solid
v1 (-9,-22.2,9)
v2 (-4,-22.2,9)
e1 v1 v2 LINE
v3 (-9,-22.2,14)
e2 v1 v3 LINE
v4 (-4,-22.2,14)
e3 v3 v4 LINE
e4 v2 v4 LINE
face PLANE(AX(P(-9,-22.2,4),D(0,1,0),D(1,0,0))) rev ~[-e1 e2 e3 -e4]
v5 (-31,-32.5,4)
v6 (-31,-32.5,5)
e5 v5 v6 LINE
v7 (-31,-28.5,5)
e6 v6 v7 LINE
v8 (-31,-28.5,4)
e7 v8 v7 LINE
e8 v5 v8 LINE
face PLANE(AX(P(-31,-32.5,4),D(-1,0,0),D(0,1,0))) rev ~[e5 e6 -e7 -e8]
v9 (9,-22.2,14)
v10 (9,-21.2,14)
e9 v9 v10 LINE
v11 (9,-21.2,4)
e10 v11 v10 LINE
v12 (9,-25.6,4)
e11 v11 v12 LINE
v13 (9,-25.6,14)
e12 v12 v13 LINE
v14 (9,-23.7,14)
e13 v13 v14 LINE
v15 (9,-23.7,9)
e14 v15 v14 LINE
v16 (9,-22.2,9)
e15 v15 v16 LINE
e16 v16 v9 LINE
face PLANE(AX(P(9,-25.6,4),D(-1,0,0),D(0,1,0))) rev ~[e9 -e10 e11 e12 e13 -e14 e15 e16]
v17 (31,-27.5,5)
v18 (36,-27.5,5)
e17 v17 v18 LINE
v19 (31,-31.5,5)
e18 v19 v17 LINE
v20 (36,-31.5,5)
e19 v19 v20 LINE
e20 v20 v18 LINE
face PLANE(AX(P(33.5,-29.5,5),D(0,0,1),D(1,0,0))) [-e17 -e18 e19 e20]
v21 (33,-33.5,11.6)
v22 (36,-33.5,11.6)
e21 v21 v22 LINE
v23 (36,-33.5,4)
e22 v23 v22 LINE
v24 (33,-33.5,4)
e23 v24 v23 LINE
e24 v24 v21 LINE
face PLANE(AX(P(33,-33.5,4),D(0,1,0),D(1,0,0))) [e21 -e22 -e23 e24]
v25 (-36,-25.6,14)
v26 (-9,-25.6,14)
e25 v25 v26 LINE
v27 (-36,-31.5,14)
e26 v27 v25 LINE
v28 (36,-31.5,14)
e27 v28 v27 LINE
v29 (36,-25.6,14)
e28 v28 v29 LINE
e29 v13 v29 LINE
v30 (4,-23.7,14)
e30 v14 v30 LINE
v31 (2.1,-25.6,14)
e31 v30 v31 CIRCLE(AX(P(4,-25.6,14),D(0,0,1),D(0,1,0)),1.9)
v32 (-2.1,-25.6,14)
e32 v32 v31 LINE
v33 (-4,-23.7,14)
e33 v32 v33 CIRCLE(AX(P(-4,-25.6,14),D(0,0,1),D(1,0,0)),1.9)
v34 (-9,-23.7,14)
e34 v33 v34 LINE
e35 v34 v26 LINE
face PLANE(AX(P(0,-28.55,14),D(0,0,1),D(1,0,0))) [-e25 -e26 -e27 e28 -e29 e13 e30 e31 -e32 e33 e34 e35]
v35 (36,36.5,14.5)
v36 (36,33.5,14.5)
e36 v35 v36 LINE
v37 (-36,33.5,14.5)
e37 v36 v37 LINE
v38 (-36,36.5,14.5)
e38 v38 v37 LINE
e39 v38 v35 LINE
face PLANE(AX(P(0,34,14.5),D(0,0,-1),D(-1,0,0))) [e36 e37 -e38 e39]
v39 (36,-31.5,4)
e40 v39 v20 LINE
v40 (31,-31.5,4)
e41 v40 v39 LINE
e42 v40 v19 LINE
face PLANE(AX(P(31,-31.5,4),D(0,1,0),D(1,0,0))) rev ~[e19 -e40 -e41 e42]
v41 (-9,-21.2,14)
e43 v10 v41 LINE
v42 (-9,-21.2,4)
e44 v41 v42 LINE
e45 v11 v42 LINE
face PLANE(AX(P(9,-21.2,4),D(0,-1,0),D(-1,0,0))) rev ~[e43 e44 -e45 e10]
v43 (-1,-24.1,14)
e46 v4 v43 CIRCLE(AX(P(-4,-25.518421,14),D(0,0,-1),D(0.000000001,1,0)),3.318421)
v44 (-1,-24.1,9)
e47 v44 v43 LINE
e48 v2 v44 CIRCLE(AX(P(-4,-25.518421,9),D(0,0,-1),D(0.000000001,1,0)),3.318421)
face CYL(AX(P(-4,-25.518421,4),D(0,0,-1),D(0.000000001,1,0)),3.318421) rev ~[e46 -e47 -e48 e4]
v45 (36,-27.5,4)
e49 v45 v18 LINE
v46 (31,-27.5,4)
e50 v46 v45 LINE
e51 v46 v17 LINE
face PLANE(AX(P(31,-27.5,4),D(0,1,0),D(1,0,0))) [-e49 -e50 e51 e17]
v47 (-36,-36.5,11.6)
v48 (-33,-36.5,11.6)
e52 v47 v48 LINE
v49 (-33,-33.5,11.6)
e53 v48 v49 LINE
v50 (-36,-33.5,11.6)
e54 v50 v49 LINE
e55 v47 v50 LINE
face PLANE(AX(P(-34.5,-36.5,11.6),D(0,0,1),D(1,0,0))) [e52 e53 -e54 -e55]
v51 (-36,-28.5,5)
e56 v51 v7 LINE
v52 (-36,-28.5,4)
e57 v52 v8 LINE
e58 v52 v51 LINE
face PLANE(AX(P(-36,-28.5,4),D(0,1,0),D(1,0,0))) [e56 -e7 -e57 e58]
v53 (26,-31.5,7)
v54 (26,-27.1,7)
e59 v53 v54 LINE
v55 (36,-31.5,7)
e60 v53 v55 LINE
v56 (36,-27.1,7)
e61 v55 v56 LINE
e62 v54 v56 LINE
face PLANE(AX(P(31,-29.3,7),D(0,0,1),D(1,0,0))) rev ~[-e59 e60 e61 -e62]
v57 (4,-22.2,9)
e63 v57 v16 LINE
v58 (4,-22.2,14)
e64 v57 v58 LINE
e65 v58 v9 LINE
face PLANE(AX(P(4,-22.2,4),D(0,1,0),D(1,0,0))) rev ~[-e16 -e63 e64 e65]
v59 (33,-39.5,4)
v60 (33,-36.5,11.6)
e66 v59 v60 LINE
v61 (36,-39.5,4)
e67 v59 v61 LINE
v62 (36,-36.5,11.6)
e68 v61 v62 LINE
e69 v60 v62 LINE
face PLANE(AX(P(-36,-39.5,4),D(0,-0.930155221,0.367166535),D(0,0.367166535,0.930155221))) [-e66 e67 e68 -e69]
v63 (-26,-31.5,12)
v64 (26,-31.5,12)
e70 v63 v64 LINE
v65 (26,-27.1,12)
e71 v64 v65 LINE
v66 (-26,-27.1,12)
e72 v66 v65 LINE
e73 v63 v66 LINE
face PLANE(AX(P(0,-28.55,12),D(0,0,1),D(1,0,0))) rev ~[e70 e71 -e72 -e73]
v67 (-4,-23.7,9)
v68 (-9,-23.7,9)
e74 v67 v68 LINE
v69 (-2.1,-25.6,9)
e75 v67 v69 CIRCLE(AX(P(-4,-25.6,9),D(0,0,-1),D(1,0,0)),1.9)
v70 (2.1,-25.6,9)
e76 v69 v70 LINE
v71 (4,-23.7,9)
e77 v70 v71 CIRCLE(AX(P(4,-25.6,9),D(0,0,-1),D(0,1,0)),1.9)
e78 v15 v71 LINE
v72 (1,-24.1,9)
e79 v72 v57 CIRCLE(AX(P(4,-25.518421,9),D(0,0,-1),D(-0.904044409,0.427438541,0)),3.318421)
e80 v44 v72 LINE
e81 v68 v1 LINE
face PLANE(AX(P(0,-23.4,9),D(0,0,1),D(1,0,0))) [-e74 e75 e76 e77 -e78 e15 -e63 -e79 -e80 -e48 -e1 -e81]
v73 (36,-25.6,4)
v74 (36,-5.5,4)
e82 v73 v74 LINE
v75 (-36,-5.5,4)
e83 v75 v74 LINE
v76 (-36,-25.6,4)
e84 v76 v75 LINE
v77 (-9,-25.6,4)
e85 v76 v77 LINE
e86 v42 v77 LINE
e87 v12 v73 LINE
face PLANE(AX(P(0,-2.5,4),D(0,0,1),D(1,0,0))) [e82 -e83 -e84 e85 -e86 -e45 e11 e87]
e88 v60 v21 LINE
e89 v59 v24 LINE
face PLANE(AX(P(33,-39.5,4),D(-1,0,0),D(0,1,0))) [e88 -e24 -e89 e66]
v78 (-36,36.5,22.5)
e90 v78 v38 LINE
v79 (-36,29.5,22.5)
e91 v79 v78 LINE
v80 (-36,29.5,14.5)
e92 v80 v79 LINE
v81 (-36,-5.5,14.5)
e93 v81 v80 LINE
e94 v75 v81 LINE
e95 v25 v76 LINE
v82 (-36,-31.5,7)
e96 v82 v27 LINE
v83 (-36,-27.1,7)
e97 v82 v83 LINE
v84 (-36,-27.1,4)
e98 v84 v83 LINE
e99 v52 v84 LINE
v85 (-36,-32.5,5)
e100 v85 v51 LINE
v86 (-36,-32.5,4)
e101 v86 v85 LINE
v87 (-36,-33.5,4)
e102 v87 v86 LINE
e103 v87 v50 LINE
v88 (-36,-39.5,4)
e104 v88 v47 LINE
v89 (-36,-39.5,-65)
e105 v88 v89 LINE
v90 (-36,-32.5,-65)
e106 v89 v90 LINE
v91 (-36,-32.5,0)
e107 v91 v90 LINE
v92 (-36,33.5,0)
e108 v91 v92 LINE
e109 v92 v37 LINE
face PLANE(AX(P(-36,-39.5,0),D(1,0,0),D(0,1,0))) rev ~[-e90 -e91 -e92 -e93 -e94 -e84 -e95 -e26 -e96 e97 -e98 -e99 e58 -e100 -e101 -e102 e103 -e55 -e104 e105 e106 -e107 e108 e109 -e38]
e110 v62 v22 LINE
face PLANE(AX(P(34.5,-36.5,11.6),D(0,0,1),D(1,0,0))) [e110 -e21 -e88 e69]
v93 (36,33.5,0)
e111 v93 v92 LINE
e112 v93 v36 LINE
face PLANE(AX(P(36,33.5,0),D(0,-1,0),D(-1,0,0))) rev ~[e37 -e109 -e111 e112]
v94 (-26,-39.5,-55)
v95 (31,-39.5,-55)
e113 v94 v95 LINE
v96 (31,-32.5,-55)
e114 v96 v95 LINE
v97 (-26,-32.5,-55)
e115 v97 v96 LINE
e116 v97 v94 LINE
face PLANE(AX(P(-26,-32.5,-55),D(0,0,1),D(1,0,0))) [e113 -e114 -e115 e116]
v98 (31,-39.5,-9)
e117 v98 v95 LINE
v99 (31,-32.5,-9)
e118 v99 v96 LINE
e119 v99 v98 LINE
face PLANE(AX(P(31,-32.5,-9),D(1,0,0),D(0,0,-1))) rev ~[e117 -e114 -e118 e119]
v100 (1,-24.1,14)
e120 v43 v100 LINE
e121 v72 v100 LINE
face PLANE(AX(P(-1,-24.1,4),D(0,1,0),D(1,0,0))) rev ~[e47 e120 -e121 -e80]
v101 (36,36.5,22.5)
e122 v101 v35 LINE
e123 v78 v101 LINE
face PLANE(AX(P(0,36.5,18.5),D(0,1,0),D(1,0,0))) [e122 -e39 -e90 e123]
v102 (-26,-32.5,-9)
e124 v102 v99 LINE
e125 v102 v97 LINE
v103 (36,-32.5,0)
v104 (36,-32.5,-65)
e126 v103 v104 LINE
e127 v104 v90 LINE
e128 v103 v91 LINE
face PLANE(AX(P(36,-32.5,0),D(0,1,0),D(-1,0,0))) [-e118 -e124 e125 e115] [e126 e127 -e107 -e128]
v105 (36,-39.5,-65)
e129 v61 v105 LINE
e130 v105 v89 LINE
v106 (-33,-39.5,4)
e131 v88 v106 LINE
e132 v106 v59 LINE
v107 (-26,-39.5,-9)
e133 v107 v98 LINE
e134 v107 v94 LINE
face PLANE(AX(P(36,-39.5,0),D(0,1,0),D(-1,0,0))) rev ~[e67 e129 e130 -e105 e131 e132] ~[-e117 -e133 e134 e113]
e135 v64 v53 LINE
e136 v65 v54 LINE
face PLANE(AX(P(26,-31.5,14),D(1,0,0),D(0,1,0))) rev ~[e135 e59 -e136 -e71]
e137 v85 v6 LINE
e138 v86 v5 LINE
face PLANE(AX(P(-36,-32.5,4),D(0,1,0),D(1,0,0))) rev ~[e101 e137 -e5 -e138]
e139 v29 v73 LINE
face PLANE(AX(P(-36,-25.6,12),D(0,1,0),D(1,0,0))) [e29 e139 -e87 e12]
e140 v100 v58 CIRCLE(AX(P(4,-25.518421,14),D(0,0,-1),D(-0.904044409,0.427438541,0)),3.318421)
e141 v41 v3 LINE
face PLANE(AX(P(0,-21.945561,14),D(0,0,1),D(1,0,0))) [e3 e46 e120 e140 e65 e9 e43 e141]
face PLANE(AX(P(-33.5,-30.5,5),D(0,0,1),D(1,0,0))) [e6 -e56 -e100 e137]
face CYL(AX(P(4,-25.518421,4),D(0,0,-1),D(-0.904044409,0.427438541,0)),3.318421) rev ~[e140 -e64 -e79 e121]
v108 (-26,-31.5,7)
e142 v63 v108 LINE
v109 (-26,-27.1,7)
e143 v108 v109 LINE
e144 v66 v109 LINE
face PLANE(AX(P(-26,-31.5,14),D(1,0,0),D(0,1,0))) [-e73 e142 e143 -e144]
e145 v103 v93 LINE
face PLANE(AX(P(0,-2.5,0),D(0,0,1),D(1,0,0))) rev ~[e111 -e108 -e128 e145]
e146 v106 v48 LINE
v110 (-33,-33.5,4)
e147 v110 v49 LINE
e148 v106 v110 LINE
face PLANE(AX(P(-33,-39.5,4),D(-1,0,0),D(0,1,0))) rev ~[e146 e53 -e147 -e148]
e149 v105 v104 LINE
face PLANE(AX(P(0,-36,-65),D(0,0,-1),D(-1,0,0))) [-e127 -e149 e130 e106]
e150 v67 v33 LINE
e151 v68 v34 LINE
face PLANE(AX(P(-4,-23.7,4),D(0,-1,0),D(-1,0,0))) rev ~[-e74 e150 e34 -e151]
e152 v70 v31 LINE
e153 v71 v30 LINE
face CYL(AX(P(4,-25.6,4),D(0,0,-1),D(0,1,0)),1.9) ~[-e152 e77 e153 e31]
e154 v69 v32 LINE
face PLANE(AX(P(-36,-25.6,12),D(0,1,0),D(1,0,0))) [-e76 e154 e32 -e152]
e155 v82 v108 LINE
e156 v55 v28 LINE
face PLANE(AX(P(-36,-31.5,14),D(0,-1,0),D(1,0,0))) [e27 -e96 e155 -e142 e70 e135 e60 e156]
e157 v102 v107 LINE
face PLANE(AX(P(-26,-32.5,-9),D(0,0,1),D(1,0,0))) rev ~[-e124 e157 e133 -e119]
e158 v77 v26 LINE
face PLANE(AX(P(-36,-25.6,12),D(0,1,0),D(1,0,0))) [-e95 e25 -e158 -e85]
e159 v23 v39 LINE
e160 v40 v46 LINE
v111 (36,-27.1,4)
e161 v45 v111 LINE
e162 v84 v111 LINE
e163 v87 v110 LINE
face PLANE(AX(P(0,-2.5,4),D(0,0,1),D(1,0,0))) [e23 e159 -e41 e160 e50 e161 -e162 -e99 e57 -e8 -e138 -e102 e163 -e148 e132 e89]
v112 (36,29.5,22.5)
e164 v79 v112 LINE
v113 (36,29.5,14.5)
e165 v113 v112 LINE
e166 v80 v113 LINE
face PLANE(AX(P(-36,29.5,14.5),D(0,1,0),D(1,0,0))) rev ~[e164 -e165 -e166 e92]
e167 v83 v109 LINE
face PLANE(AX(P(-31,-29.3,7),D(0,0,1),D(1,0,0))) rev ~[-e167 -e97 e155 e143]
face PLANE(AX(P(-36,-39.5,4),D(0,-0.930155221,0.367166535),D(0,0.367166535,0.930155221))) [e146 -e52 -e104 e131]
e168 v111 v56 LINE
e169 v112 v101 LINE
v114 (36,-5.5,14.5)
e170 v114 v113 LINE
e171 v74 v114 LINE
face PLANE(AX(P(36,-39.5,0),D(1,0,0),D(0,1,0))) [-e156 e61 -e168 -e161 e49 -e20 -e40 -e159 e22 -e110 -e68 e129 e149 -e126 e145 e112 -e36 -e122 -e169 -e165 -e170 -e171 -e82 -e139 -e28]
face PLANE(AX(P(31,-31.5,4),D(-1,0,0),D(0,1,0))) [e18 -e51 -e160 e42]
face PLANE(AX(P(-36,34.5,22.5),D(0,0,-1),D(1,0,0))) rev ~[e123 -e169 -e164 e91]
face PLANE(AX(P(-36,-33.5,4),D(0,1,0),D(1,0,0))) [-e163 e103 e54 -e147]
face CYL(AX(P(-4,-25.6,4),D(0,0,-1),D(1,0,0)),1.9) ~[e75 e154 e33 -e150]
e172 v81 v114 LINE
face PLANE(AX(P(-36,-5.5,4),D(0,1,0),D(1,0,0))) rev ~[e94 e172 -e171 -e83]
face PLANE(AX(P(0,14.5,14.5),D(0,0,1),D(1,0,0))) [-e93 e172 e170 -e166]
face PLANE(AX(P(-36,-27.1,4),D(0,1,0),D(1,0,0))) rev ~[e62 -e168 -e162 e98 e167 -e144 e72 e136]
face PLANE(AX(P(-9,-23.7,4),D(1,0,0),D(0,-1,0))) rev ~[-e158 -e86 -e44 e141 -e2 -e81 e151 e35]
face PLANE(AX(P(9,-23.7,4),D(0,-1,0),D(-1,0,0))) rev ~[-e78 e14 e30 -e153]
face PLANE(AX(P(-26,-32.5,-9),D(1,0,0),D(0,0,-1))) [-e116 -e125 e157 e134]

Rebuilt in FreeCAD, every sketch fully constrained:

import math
import FreeCAD as App
import Part
import Sketcher
Q = App.Units.Quantity


def add_polygon(sketch, points):
    """Adds a closed chain of lines whose ends are joined by coincident constraints."""
    first, n = sketch.GeometryCount, len(points)
    for a, b in zip(points, points[1:] + points[:1]):
        sketch.addGeometry(Part.LineSegment(App.Vector(*a, 0), App.Vector(*b, 0)), False)
    for i in range(n):
        sketch.addConstraint(Sketcher.Constraint("Coincident", first + i, 2, first + (i + 1) % n, 1))

doc = App.newDocument("Part")
params = doc.addObject("Spreadsheet::Sheet", "Params")
for row, (alias, value) in enumerate([
    ("sketch1_width", "72 mm"),
    ("sketch1_height", "74 mm"),
    ("pad1_length", "4 mm"),
    ("sketch2_width", "3 mm"),
    ("sketch2_height", "6 mm"),
    ("pad2_length", "7.6 mm"),
    ("sketch3_width", "3 mm"),
    ("sketch3_height", "7.6 mm"),
    ("sketch4_width", "5 mm"),
    ("sketch4_height", "4 mm"),
    ("pad3_length", "1 mm"),
    ("sketch5_width", "72 mm"),
    ("sketch5_height", "1.5 mm"),
    ("pad4_length", "8 mm"),
    ("sketch6_width", "72 mm"),
    ("sketch6_height", "5.9 mm"),
    ("pad5_length", "2 mm"),
    ("sketch7_width", "10 mm"),
    ("sketch7_height", "4.4 mm"),
    ("pad6_length", "7 mm"),
    ("sketch8_radius", "1.9 mm"),
    ("sketch8_width", "5 mm"),
    ("sketch8_width2", "2 mm"),
    ("sketch8_width3", "18 mm"),
    ("sketch8_height", "1 mm"),
    ("pad7_length", "10 mm"),
    ("sketch9_width", "18 mm"),
    ("sketch9_height", "4.4 mm"),
    ("pad8_length", "5 mm"),
    ("sketch10_width", "72 mm"),
    ("sketch10_height", "40 mm"),
    ("pad9_length", "10.5 mm"),
    ("sketch11_width", "72 mm"),
    ("sketch11_height", "5 mm"),
    ("pad10_length", "8 mm"),
    ("sketch12_width", "72 mm"),
    ("sketch12_height", "8 mm"),
    ("pad11_length", "2 mm"),
    ("sketch13_width", "72 mm"),
    ("sketch13_height", "1 mm"),
    ("pocket2_length", "14.5 mm"),
    ("sketch14_width", "72 mm"),
    ("sketch14_height", "7 mm"),
    ("pad12_length", "65 mm"),
    ("sketch15_width", "57 mm"),
    ("sketch15_height", "46 mm"),
    ("pocket3_length", "65 mm"),
], start=1):
    params.set(f"A{row}", alias)
    params.set(f"B{row}", "=" + value)
    params.setAlias(f"B{row}", alias)

body = doc.addObject("PartDesign::Body", "Body")

# Sketch on XY plane
sketch1 = body.newObject("Sketcher::SketchObject", "Sketch")
sketch1.AttachmentSupport = (doc.getObject("XY_Plane"), [""])
sketch1.MapMode = "FlatFace"
add_polygon(sketch1, [(-36, 34.5), (-36, -39.5), (36, -39.5), (36, 34.5)])  # lines 0-3
sketch1.addConstraint(Sketcher.Constraint("Vertical", 0))
sketch1.addConstraint(Sketcher.Constraint("Horizontal", 1))
sketch1.addConstraint(Sketcher.Constraint("Vertical", 2))
sketch1.addConstraint(Sketcher.Constraint("Horizontal", 3))
sketch1.addConstraint(Sketcher.Constraint("DistanceX", 1, 1, 1, 2, Q("72 mm")))
sketch1.addConstraint(Sketcher.Constraint("DistanceY", 0, 2, 0, 1, Q("74 mm")))
sketch1.addConstraint(Sketcher.Constraint("DistanceX", 0, 2, -1, 1, Q("36 mm")))
sketch1.addConstraint(Sketcher.Constraint("DistanceY", 0, 2, -1, 1, Q("39.5 mm")))
sketch1.setExpression("Constraints[8]", "Params.sketch1_width")
sketch1.setExpression("Constraints[9]", "Params.sketch1_height")
pad1 = body.newObject("PartDesign::Pad", "Pad")
pad1.Profile = sketch1
pad1.setExpression("Length", "Params.pad1_length")

# Sketch on XY plane
sketch2 = body.newObject("Sketcher::SketchObject", "Sketch001")
sketch2.AttachmentSupport = (doc.getObject("XY_Plane"), [""])
sketch2.MapMode = "FlatFace"
sketch2.AttachmentOffset = App.Placement(App.Vector(0, 0, 4), App.Rotation())
add_polygon(sketch2, [(-36, -33.5), (-36, -39.5), (-33, -39.5), (-33, -33.5)])  # lines 0-3
add_polygon(sketch2, [(33, -33.5), (33, -39.5), (36, -39.5), (36, -33.5)])  # lines 4-7
sketch2.addConstraint(Sketcher.Constraint("Vertical", 0))
sketch2.addConstraint(Sketcher.Constraint("Horizontal", 1))
sketch2.addConstraint(Sketcher.Constraint("Vertical", 2))
sketch2.addConstraint(Sketcher.Constraint("Horizontal", 3))
sketch2.addConstraint(Sketcher.Constraint("Vertical", 4))
sketch2.addConstraint(Sketcher.Constraint("Horizontal", 5))
sketch2.addConstraint(Sketcher.Constraint("Vertical", 6))
sketch2.addConstraint(Sketcher.Constraint("Horizontal", 7))
sketch2.addConstraint(Sketcher.Constraint("Symmetric", 1, 2, 4, 2, -2))
sketch2.addConstraint(Sketcher.Constraint("Symmetric", 3, 2, 6, 2, -2))
sketch2.addConstraint(Sketcher.Constraint("DistanceX", 1, 1, 1, 2, Q("3 mm")))
sketch2.addConstraint(Sketcher.Constraint("DistanceY", 0, 2, 0, 1, Q("6 mm")))
sketch2.addConstraint(Sketcher.Constraint("DistanceX", 0, 2, -1, 1, Q("36 mm")))
sketch2.addConstraint(Sketcher.Constraint("DistanceY", 0, 2, -1, 1, Q("39.5 mm")))
sketch2.setExpression("Constraints[18]", "Params.sketch2_width")
sketch2.setExpression("Constraints[19]", "Params.sketch2_height")
pad2 = body.newObject("PartDesign::Pad", "Pad001")
pad2.Profile = sketch2
pad2.setExpression("Length", "Params.pad2_length")

# Sketch on YZ plane
sketch3 = body.newObject("Sketcher::SketchObject", "Sketch002")
sketch3.AttachmentSupport = (doc.getObject("YZ_Plane"), [""])
sketch3.MapMode = "FlatFace"
sketch3.AttachmentOffset = App.Placement(App.Vector(0, 0, -36), App.Rotation())
add_polygon(sketch3, [(-36.5, 11.6), (-39.5, 4), (-39.5, 11.6)])  # lines 0-2
sketch3.addConstraint(Sketcher.Constraint("Vertical", 1))
sketch3.addConstraint(Sketcher.Constraint("Horizontal", 2))
sketch3.addConstraint(Sketcher.Constraint("DistanceX", 2, 1, 2, 2, Q("3 mm")))
sketch3.addConstraint(Sketcher.Constraint("DistanceY", 1, 1, 1, 2, Q("7.6 mm")))
sketch3.addConstraint(Sketcher.Constraint("DistanceY", -1, 1, 0, 2, Q("4 mm")))
sketch3.addConstraint(Sketcher.Constraint("DistanceX", 0, 2, -1, 1, Q("39.5 mm")))
sketch3.setExpression("Constraints[5]", "Params.sketch3_width")
sketch3.setExpression("Constraints[6]", "Params.sketch3_height")
pocket1 = body.newObject("PartDesign::Pocket", "Pocket")
pocket1.Profile = sketch3
pocket1.Type = "ThroughAll"
pocket1.Reversed = True

# Sketch on XY plane
sketch4 = body.newObject("Sketcher::SketchObject", "Sketch003")
sketch4.AttachmentSupport = (doc.getObject("XY_Plane"), [""])
sketch4.MapMode = "FlatFace"
sketch4.AttachmentOffset = App.Placement(App.Vector(0, 0, 4), App.Rotation())
add_polygon(sketch4, [(-36, -28.5), (-36, -32.5), (-31, -32.5), (-31, -28.5)])  # lines 0-3
add_polygon(sketch4, [(31, -27.5), (31, -31.5), (36, -31.5), (36, -27.5)])  # lines 4-7
sketch4.addConstraint(Sketcher.Constraint("Vertical", 0))
sketch4.addConstraint(Sketcher.Constraint("Horizontal", 1))
sketch4.addConstraint(Sketcher.Constraint("Vertical", 2))
sketch4.addConstraint(Sketcher.Constraint("Horizontal", 3))
sketch4.addConstraint(Sketcher.Constraint("Vertical", 4))
sketch4.addConstraint(Sketcher.Constraint("Horizontal", 5))
sketch4.addConstraint(Sketcher.Constraint("Vertical", 6))
sketch4.addConstraint(Sketcher.Constraint("Horizontal", 7))
sketch4.addConstraint(Sketcher.Constraint("Equal", 3, 5))
sketch4.addConstraint(Sketcher.Constraint("Equal", 2, 4))
sketch4.addConstraint(Sketcher.Constraint("DistanceX", 1, 1, 1, 2, Q("5 mm")))
sketch4.addConstraint(Sketcher.Constraint("DistanceY", 0, 2, 0, 1, Q("4 mm")))
sketch4.addConstraint(Sketcher.Constraint("DistanceX", 0, 2, -1, 1, Q("36 mm")))
sketch4.addConstraint(Sketcher.Constraint("DistanceX", -1, 1, 4, 2, Q("31 mm")))
sketch4.addConstraint(Sketcher.Constraint("DistanceY", 1, 2, 4, 2, Q("1 mm")))
sketch4.addConstraint(Sketcher.Constraint("DistanceY", 0, 2, -1, 1, Q("32.5 mm")))
sketch4.setExpression("Constraints[18]", "Params.sketch4_width")
sketch4.setExpression("Constraints[19]", "Params.sketch4_height")
pad3 = body.newObject("PartDesign::Pad", "Pad002")
pad3.Profile = sketch4
pad3.setExpression("Length", "Params.pad3_length")

# Sketch on XY plane
sketch5 = body.newObject("Sketcher::SketchObject", "Sketch004")
sketch5.AttachmentSupport = (doc.getObject("XY_Plane"), [""])
sketch5.MapMode = "FlatFace"
sketch5.AttachmentOffset = App.Placement(App.Vector(0, 0, 4), App.Rotation())
add_polygon(sketch5, [(-36, -25.6), (-36, -27.1), (36, -27.1), (36, -25.6)])  # lines 0-3
sketch5.addConstraint(Sketcher.Constraint("Vertical", 0))
sketch5.addConstraint(Sketcher.Constraint("Horizontal", 1))
sketch5.addConstraint(Sketcher.Constraint("Vertical", 2))
sketch5.addConstraint(Sketcher.Constraint("Horizontal", 3))
sketch5.addConstraint(Sketcher.Constraint("DistanceX", 1, 1, 1, 2, Q("72 mm")))
sketch5.addConstraint(Sketcher.Constraint("DistanceY", 0, 2, 0, 1, Q("1.5 mm")))
sketch5.addConstraint(Sketcher.Constraint("DistanceX", 0, 2, -1, 1, Q("36 mm")))
sketch5.addConstraint(Sketcher.Constraint("DistanceY", 0, 2, -1, 1, Q("27.1 mm")))
sketch5.setExpression("Constraints[8]", "Params.sketch5_width")
sketch5.setExpression("Constraints[9]", "Params.sketch5_height")
pad4 = body.newObject("PartDesign::Pad", "Pad003")
pad4.Profile = sketch5
pad4.setExpression("Length", "Params.pad4_length")

# Sketch on XY plane
sketch6 = body.newObject("Sketcher::SketchObject", "Sketch005")
sketch6.AttachmentSupport = (doc.getObject("XY_Plane"), [""])
sketch6.MapMode = "FlatFace"
sketch6.AttachmentOffset = App.Placement(App.Vector(0, 0, 12), App.Rotation())
add_polygon(sketch6, [(-36, -25.6), (-36, -31.5), (36, -31.5), (36, -25.6)])  # lines 0-3
sketch6.addConstraint(Sketcher.Constraint("Vertical", 0))
sketch6.addConstraint(Sketcher.Constraint("Horizontal", 1))
sketch6.addConstraint(Sketcher.Constraint("Vertical", 2))
sketch6.addConstraint(Sketcher.Constraint("Horizontal", 3))
sketch6.addConstraint(Sketcher.Constraint("DistanceX", 1, 1, 1, 2, Q("72 mm")))
sketch6.addConstraint(Sketcher.Constraint("DistanceY", 0, 2, 0, 1, Q("5.9 mm")))
sketch6.addConstraint(Sketcher.Constraint("DistanceX", 0, 2, -1, 1, Q("36 mm")))
sketch6.addConstraint(Sketcher.Constraint("DistanceY", 0, 2, -1, 1, Q("31.5 mm")))
sketch6.setExpression("Constraints[8]", "Params.sketch6_width")
sketch6.setExpression("Constraints[9]", "Params.sketch6_height")
pad5 = body.newObject("PartDesign::Pad", "Pad004")
pad5.Profile = sketch6
pad5.setExpression("Length", "Params.pad5_length")

# Sketch on XY plane
sketch7 = body.newObject("Sketcher::SketchObject", "Sketch006")
sketch7.AttachmentSupport = (doc.getObject("XY_Plane"), [""])
sketch7.MapMode = "FlatFace"
sketch7.AttachmentOffset = App.Placement(App.Vector(0, 0, 14), App.Rotation())
add_polygon(sketch7, [(-36, -27.1), (-36, -31.5), (-26, -31.5), (-26, -27.1)])  # lines 0-3
add_polygon(sketch7, [(26, -27.1), (26, -31.5), (36, -31.5), (36, -27.1)])  # lines 4-7
sketch7.addConstraint(Sketcher.Constraint("Vertical", 0))
sketch7.addConstraint(Sketcher.Constraint("Horizontal", 1))
sketch7.addConstraint(Sketcher.Constraint("Vertical", 2))
sketch7.addConstraint(Sketcher.Constraint("Horizontal", 3))
sketch7.addConstraint(Sketcher.Constraint("Vertical", 4))
sketch7.addConstraint(Sketcher.Constraint("Horizontal", 5))
sketch7.addConstraint(Sketcher.Constraint("Vertical", 6))
sketch7.addConstraint(Sketcher.Constraint("Horizontal", 7))
sketch7.addConstraint(Sketcher.Constraint("Symmetric", 1, 2, 4, 2, -2))
sketch7.addConstraint(Sketcher.Constraint("Symmetric", 3, 2, 6, 2, -2))
sketch7.addConstraint(Sketcher.Constraint("DistanceX", 1, 1, 1, 2, Q("10 mm")))
sketch7.addConstraint(Sketcher.Constraint("DistanceY", 0, 2, 0, 1, Q("4.4 mm")))
sketch7.addConstraint(Sketcher.Constraint("DistanceX", 0, 2, -1, 1, Q("36 mm")))
sketch7.addConstraint(Sketcher.Constraint("DistanceY", 0, 2, -1, 1, Q("31.5 mm")))
sketch7.setExpression("Constraints[18]", "Params.sketch7_width")
sketch7.setExpression("Constraints[19]", "Params.sketch7_height")
pad6 = body.newObject("PartDesign::Pad", "Pad005")
pad6.Profile = sketch7
pad6.setExpression("Length", "Params.pad6_length")
pad6.Reversed = True

# Sketch on XY plane
sketch8 = body.newObject("Sketcher::SketchObject", "Sketch007")
sketch8.AttachmentSupport = (doc.getObject("XY_Plane"), [""])
sketch8.MapMode = "FlatFace"
sketch8.AttachmentOffset = App.Placement(App.Vector(0, 0, 4), App.Rotation())
sketch8.addGeometry(Part.LineSegment(App.Vector(-9, -23.7, 0), App.Vector(-9, -25.6, 0)), False)
sketch8.addGeometry(Part.LineSegment(App.Vector(-9, -25.6, 0), App.Vector(-2.1, -25.6, 0)), False)
sketch8.addGeometry(Part.ArcOfCircle(Part.Circle(App.Vector(-4, -25.6, 0), App.Vector(0, 0, 1), 1.9), math.radians(0), math.radians(90)), False)
sketch8.addGeometry(Part.LineSegment(App.Vector(-4, -23.7, 0), App.Vector(-9, -23.7, 0)), False)
sketch8.addGeometry(Part.LineSegment(App.Vector(-9, -21.2, 0), App.Vector(-9, -22.2, 0)), False)
sketch8.addGeometry(Part.LineSegment(App.Vector(-9, -22.2, 0), App.Vector(-4, -22.2, 0)), False)
sketch8.addGeometry(Part.ArcOfCircle(Part.Circle(App.Vector(-4, -25.518421, 0), App.Vector(0, 0, 1), 3.318421), math.radians(25.305113), math.radians(90)), False)
sketch8.addGeometry(Part.LineSegment(App.Vector(-1, -24.1, 0), App.Vector(1, -24.1, 0)), False)
sketch8.addGeometry(Part.ArcOfCircle(Part.Circle(App.Vector(4, -25.518421, 0), App.Vector(0, 0, 1), 3.318421), math.radians(90), math.radians(154.694887)), False)
sketch8.addGeometry(Part.LineSegment(App.Vector(4, -22.2, 0), App.Vector(9, -22.2, 0)), False)
sketch8.addGeometry(Part.LineSegment(App.Vector(9, -22.2, 0), App.Vector(9, -21.2, 0)), False)
sketch8.addGeometry(Part.LineSegment(App.Vector(9, -21.2, 0), App.Vector(-9, -21.2, 0)), False)
sketch8.addGeometry(Part.ArcOfCircle(Part.Circle(App.Vector(4, -25.6, 0), App.Vector(0, 0, 1), 1.9), math.radians(90), math.radians(180)), False)
sketch8.addGeometry(Part.LineSegment(App.Vector(2.1, -25.6, 0), App.Vector(9, -25.6, 0)), False)
sketch8.addGeometry(Part.LineSegment(App.Vector(9, -25.6, 0), App.Vector(9, -23.7, 0)), False)
sketch8.addGeometry(Part.LineSegment(App.Vector(9, -23.7, 0), App.Vector(4, -23.7, 0)), False)
sketch8.addConstraint(Sketcher.Constraint("Coincident", 0, 2, 1, 1))
sketch8.addConstraint(Sketcher.Constraint("Coincident", 1, 2, 2, 1))
sketch8.addConstraint(Sketcher.Constraint("Tangent", 2, 2, 3, 1))
sketch8.addConstraint(Sketcher.Constraint("Coincident", 3, 2, 0, 1))
sketch8.addConstraint(Sketcher.Constraint("Coincident", 4, 2, 5, 1))
sketch8.addConstraint(Sketcher.Constraint("Tangent", 5, 2, 6, 2))
sketch8.addConstraint(Sketcher.Constraint("Coincident", 6, 1, 7, 1))
sketch8.addConstraint(Sketcher.Constraint("Coincident", 7, 2, 8, 2))
sketch8.addConstraint(Sketcher.Constraint("Tangent", 8, 1, 9, 1))
sketch8.addConstraint(Sketcher.Constraint("Coincident", 9, 2, 10, 1))
sketch8.addConstraint(Sketcher.Constraint("Coincident", 10, 2, 11, 1))
sketch8.addConstraint(Sketcher.Constraint("Coincident", 11, 2, 4, 1))
sketch8.addConstraint(Sketcher.Constraint("Coincident", 12, 2, 13, 1))
sketch8.addConstraint(Sketcher.Constraint("Coincident", 13, 2, 14, 1))
sketch8.addConstraint(Sketcher.Constraint("Coincident", 14, 2, 15, 1))
sketch8.addConstraint(Sketcher.Constraint("Tangent", 15, 2, 12, 1))
sketch8.addConstraint(Sketcher.Constraint("Vertical", 0))
sketch8.addConstraint(Sketcher.Constraint("Horizontal", 1))
sketch8.addConstraint(Sketcher.Constraint("Horizontal", 3))
sketch8.addConstraint(Sketcher.Constraint("Vertical", 4))
sketch8.addConstraint(Sketcher.Constraint("Horizontal", 5))
sketch8.addConstraint(Sketcher.Constraint("Horizontal", 7))
sketch8.addConstraint(Sketcher.Constraint("Horizontal", 9))
sketch8.addConstraint(Sketcher.Constraint("Vertical", 10))
sketch8.addConstraint(Sketcher.Constraint("Horizontal", 11))
sketch8.addConstraint(Sketcher.Constraint("Horizontal", 13))
sketch8.addConstraint(Sketcher.Constraint("Vertical", 14))
sketch8.addConstraint(Sketcher.Constraint("Horizontal", 15))
sketch8.addConstraint(Sketcher.Constraint("Equal", 6, 8))
sketch8.addConstraint(Sketcher.Constraint("Equal", 2, 12))
sketch8.addConstraint(Sketcher.Constraint("Symmetric", 6, 3, 8, 3, -2))
sketch8.addConstraint(Sketcher.Constraint("Symmetric", 2, 3, 12, 3, -2))
sketch8.addConstraint(Sketcher.Constraint("Symmetric", 0, 2, 13, 2, -2))
sketch8.addConstraint(Sketcher.Constraint("Horizontal", 12, 3, 0, 2))
sketch8.addConstraint(Sketcher.Constraint("Vertical", 2, 3, 6, 3))
sketch8.addConstraint(Sketcher.Constraint("Vertical", 3, 2, 4, 2))
sketch8.addConstraint(Sketcher.Constraint("Vertical", 10, 2, 13, 2))
sketch8.addConstraint(Sketcher.Constraint("Radius", 2, Q("1.9 mm")))
sketch8.addConstraint(Sketcher.Constraint("DistanceX", 3, 2, 3, 1, Q("5 mm")))
sketch8.addConstraint(Sketcher.Constraint("DistanceX", 7, 1, 7, 2, Q("2 mm")))
sketch8.addConstraint(Sketcher.Constraint("DistanceX", 11, 2, 11, 1, Q("18 mm")))
sketch8.addConstraint(Sketcher.Constraint("DistanceY", 4, 2, 4, 1, Q("1 mm")))
sketch8.addConstraint(Sketcher.Constraint("DistanceY", 2, 3, -1, 1, Q("25.6 mm")))
sketch8.addConstraint(Sketcher.Constraint("DistanceY", 4, 2, -1, 1, Q("22.2 mm")))
sketch8.addConstraint(Sketcher.Constraint("DistanceY", 6, 1, -1, 1, Q("24.1 mm")))
sketch8.setExpression("Constraints[37]", "Params.sketch8_radius")
sketch8.setExpression("Constraints[38]", "Params.sketch8_width")
sketch8.setExpression("Constraints[39]", "Params.sketch8_width2")
sketch8.setExpression("Constraints[40]", "Params.sketch8_width3")
sketch8.setExpression("Constraints[41]", "Params.sketch8_height")
pad7 = body.newObject("PartDesign::Pad", "Pad006")
pad7.Profile = sketch8
pad7.setExpression("Length", "Params.pad7_length")

# Sketch on XY plane
sketch9 = body.newObject("Sketcher::SketchObject", "Sketch008")
sketch9.AttachmentSupport = (doc.getObject("XY_Plane"), [""])
sketch9.MapMode = "FlatFace"
sketch9.AttachmentOffset = App.Placement(App.Vector(0, 0, 4), App.Rotation())
add_polygon(sketch9, [(-9, -21.2), (-9, -25.6), (9, -25.6), (9, -21.2)])  # lines 0-3
sketch9.addConstraint(Sketcher.Constraint("Vertical", 0))
sketch9.addConstraint(Sketcher.Constraint("Horizontal", 1))
sketch9.addConstraint(Sketcher.Constraint("Vertical", 2))
sketch9.addConstraint(Sketcher.Constraint("Horizontal", 3))
sketch9.addConstraint(Sketcher.Constraint("DistanceX", 1, 1, 1, 2, Q("18 mm")))
sketch9.addConstraint(Sketcher.Constraint("DistanceY", 0, 2, 0, 1, Q("4.4 mm")))
sketch9.addConstraint(Sketcher.Constraint("DistanceX", 0, 2, -1, 1, Q("9 mm")))
sketch9.addConstraint(Sketcher.Constraint("DistanceY", 0, 2, -1, 1, Q("25.6 mm")))
sketch9.setExpression("Constraints[8]", "Params.sketch9_width")
sketch9.setExpression("Constraints[9]", "Params.sketch9_height")
pad8 = body.newObject("PartDesign::Pad", "Pad007")
pad8.Profile = sketch9
pad8.setExpression("Length", "Params.pad8_length")

# Sketch on XY plane
sketch10 = body.newObject("Sketcher::SketchObject", "Sketch009")
sketch10.AttachmentSupport = (doc.getObject("XY_Plane"), [""])
sketch10.MapMode = "FlatFace"
sketch10.AttachmentOffset = App.Placement(App.Vector(0, 0, 4), App.Rotation())
add_polygon(sketch10, [(-36, 34.5), (-36, -5.5), (36, -5.5), (36, 34.5)])  # lines 0-3
sketch10.addConstraint(Sketcher.Constraint("Vertical", 0))
sketch10.addConstraint(Sketcher.Constraint("Horizontal", 1))
sketch10.addConstraint(Sketcher.Constraint("Vertical", 2))
sketch10.addConstraint(Sketcher.Constraint("Horizontal", 3))
sketch10.addConstraint(Sketcher.Constraint("DistanceX", 1, 1, 1, 2, Q("72 mm")))
sketch10.addConstraint(Sketcher.Constraint("DistanceY", 0, 2, 0, 1, Q("40 mm")))
sketch10.addConstraint(Sketcher.Constraint("DistanceX", 0, 2, -1, 1, Q("36 mm")))
sketch10.addConstraint(Sketcher.Constraint("DistanceY", 0, 2, -1, 1, Q("5.5 mm")))
sketch10.setExpression("Constraints[8]", "Params.sketch10_width")
sketch10.setExpression("Constraints[9]", "Params.sketch10_height")
pad9 = body.newObject("PartDesign::Pad", "Pad008")
pad9.Profile = sketch10
pad9.setExpression("Length", "Params.pad9_length")

# Sketch on XY plane
sketch11 = body.newObject("Sketcher::SketchObject", "Sketch010")
sketch11.AttachmentSupport = (doc.getObject("XY_Plane"), [""])
sketch11.MapMode = "FlatFace"
sketch11.AttachmentOffset = App.Placement(App.Vector(0, 0, 14.5), App.Rotation())
add_polygon(sketch11, [(-36, 34.5), (-36, 29.5), (36, 29.5), (36, 34.5)])  # lines 0-3
sketch11.addConstraint(Sketcher.Constraint("Vertical", 0))
sketch11.addConstraint(Sketcher.Constraint("Horizontal", 1))
sketch11.addConstraint(Sketcher.Constraint("Vertical", 2))
sketch11.addConstraint(Sketcher.Constraint("Horizontal", 3))
sketch11.addConstraint(Sketcher.Constraint("DistanceX", 1, 1, 1, 2, Q("72 mm")))
sketch11.addConstraint(Sketcher.Constraint("DistanceY", 0, 2, 0, 1, Q("5 mm")))
sketch11.addConstraint(Sketcher.Constraint("DistanceX", 0, 2, -1, 1, Q("36 mm")))
sketch11.addConstraint(Sketcher.Constraint("DistanceY", -1, 1, 0, 2, Q("29.5 mm")))
sketch11.setExpression("Constraints[8]", "Params.sketch11_width")
sketch11.setExpression("Constraints[9]", "Params.sketch11_height")
pad10 = body.newObject("PartDesign::Pad", "Pad009")
pad10.Profile = sketch11
pad10.setExpression("Length", "Params.pad10_length")

# Sketch on XZ plane
sketch12 = body.newObject("Sketcher::SketchObject", "Sketch011")
sketch12.AttachmentSupport = (doc.getObject("XZ_Plane"), [""])
sketch12.MapMode = "FlatFace"
sketch12.AttachmentOffset = App.Placement(App.Vector(0, 0, -34.5), App.Rotation())
add_polygon(sketch12, [(-36, 14.5), (-36, 22.5), (36, 22.5), (36, 14.5)])  # lines 0-3
sketch12.addConstraint(Sketcher.Constraint("Vertical", 0))
sketch12.addConstraint(Sketcher.Constraint("Horizontal", 1))
sketch12.addConstraint(Sketcher.Constraint("Vertical", 2))
sketch12.addConstraint(Sketcher.Constraint("Horizontal", 3))
sketch12.addConstraint(Sketcher.Constraint("DistanceX", 1, 1, 1, 2, Q("72 mm")))
sketch12.addConstraint(Sketcher.Constraint("DistanceY", 0, 1, 0, 2, Q("8 mm")))
sketch12.addConstraint(Sketcher.Constraint("DistanceX", 0, 2, -1, 1, Q("36 mm")))
sketch12.addConstraint(Sketcher.Constraint("DistanceY", -1, 1, 0, 2, Q("22.5 mm")))
sketch12.setExpression("Constraints[8]", "Params.sketch12_width")
sketch12.setExpression("Constraints[9]", "Params.sketch12_height")
pad11 = body.newObject("PartDesign::Pad", "Pad010")
pad11.Profile = sketch12
pad11.setExpression("Length", "Params.pad11_length")
pad11.Reversed = True

# Sketch on XY plane
sketch13 = body.newObject("Sketcher::SketchObject", "Sketch012")
sketch13.AttachmentSupport = (doc.getObject("XY_Plane"), [""])
sketch13.MapMode = "FlatFace"
add_polygon(sketch13, [(36, 34.5), (36, 33.5), (-36, 33.5), (-36, 34.5)])  # lines 0-3
sketch13.addConstraint(Sketcher.Constraint("Vertical", 0))
sketch13.addConstraint(Sketcher.Constraint("Horizontal", 1))
sketch13.addConstraint(Sketcher.Constraint("Vertical", 2))
sketch13.addConstraint(Sketcher.Constraint("Horizontal", 3))
sketch13.addConstraint(Sketcher.Constraint("DistanceX", 1, 2, 1, 1, Q("72 mm")))
sketch13.addConstraint(Sketcher.Constraint("DistanceY", 0, 2, 0, 1, Q("1 mm")))
sketch13.addConstraint(Sketcher.Constraint("DistanceX", -1, 1, 0, 2, Q("36 mm")))
sketch13.addConstraint(Sketcher.Constraint("DistanceY", -1, 1, 0, 2, Q("33.5 mm")))
sketch13.setExpression("Constraints[8]", "Params.sketch13_width")
sketch13.setExpression("Constraints[9]", "Params.sketch13_height")
pocket2 = body.newObject("PartDesign::Pocket", "Pocket001")
pocket2.Profile = sketch13
pocket2.setExpression("Length", "Params.pocket2_length")
pocket2.Reversed = True

# Sketch on XY plane
sketch14 = body.newObject("Sketcher::SketchObject", "Sketch013")
sketch14.AttachmentSupport = (doc.getObject("XY_Plane"), [""])
sketch14.MapMode = "FlatFace"
add_polygon(sketch14, [(36, -32.5), (36, -39.5), (-36, -39.5), (-36, -32.5)])  # lines 0-3
sketch14.addConstraint(Sketcher.Constraint("Vertical", 0))
sketch14.addConstraint(Sketcher.Constraint("Horizontal", 1))
sketch14.addConstraint(Sketcher.Constraint("Vertical", 2))
sketch14.addConstraint(Sketcher.Constraint("Horizontal", 3))
sketch14.addConstraint(Sketcher.Constraint("DistanceX", 1, 2, 1, 1, Q("72 mm")))
sketch14.addConstraint(Sketcher.Constraint("DistanceY", 0, 2, 0, 1, Q("7 mm")))
sketch14.addConstraint(Sketcher.Constraint("DistanceX", -1, 1, 0, 2, Q("36 mm")))
sketch14.addConstraint(Sketcher.Constraint("DistanceY", 0, 2, -1, 1, Q("39.5 mm")))
sketch14.setExpression("Constraints[8]", "Params.sketch14_width")
sketch14.setExpression("Constraints[9]", "Params.sketch14_height")
pad12 = body.newObject("PartDesign::Pad", "Pad011")
pad12.Profile = sketch14
pad12.setExpression("Length", "Params.pad12_length")
pad12.Reversed = True

# Sketch on XZ plane
sketch15 = body.newObject("Sketcher::SketchObject", "Sketch014")
sketch15.AttachmentSupport = (doc.getObject("XZ_Plane"), [""])
sketch15.MapMode = "FlatFace"
sketch15.AttachmentOffset = App.Placement(App.Vector(0, 0, 32.5), App.Rotation())
add_polygon(sketch15, [(-26, -55), (-26, -9), (31, -9), (31, -55)])  # lines 0-3
sketch15.addConstraint(Sketcher.Constraint("Vertical", 0))
sketch15.addConstraint(Sketcher.Constraint("Horizontal", 1))
sketch15.addConstraint(Sketcher.Constraint("Vertical", 2))
sketch15.addConstraint(Sketcher.Constraint("Horizontal", 3))
sketch15.addConstraint(Sketcher.Constraint("DistanceX", 1, 1, 1, 2, Q("57 mm")))
sketch15.addConstraint(Sketcher.Constraint("DistanceY", 0, 1, 0, 2, Q("46 mm")))
sketch15.addConstraint(Sketcher.Constraint("DistanceX", 0, 2, -1, 1, Q("26 mm")))
sketch15.addConstraint(Sketcher.Constraint("DistanceY", 0, 2, -1, 1, Q("9 mm")))
sketch15.setExpression("Constraints[8]", "Params.sketch15_width")
sketch15.setExpression("Constraints[9]", "Params.sketch15_height")
pocket3 = body.newObject("PartDesign::Pocket", "Pocket002")
pocket3.Profile = sketch15
pocket3.setExpression("Length", "Params.pocket3_length")
pocket3.Reversed = True

doc.recompute()
